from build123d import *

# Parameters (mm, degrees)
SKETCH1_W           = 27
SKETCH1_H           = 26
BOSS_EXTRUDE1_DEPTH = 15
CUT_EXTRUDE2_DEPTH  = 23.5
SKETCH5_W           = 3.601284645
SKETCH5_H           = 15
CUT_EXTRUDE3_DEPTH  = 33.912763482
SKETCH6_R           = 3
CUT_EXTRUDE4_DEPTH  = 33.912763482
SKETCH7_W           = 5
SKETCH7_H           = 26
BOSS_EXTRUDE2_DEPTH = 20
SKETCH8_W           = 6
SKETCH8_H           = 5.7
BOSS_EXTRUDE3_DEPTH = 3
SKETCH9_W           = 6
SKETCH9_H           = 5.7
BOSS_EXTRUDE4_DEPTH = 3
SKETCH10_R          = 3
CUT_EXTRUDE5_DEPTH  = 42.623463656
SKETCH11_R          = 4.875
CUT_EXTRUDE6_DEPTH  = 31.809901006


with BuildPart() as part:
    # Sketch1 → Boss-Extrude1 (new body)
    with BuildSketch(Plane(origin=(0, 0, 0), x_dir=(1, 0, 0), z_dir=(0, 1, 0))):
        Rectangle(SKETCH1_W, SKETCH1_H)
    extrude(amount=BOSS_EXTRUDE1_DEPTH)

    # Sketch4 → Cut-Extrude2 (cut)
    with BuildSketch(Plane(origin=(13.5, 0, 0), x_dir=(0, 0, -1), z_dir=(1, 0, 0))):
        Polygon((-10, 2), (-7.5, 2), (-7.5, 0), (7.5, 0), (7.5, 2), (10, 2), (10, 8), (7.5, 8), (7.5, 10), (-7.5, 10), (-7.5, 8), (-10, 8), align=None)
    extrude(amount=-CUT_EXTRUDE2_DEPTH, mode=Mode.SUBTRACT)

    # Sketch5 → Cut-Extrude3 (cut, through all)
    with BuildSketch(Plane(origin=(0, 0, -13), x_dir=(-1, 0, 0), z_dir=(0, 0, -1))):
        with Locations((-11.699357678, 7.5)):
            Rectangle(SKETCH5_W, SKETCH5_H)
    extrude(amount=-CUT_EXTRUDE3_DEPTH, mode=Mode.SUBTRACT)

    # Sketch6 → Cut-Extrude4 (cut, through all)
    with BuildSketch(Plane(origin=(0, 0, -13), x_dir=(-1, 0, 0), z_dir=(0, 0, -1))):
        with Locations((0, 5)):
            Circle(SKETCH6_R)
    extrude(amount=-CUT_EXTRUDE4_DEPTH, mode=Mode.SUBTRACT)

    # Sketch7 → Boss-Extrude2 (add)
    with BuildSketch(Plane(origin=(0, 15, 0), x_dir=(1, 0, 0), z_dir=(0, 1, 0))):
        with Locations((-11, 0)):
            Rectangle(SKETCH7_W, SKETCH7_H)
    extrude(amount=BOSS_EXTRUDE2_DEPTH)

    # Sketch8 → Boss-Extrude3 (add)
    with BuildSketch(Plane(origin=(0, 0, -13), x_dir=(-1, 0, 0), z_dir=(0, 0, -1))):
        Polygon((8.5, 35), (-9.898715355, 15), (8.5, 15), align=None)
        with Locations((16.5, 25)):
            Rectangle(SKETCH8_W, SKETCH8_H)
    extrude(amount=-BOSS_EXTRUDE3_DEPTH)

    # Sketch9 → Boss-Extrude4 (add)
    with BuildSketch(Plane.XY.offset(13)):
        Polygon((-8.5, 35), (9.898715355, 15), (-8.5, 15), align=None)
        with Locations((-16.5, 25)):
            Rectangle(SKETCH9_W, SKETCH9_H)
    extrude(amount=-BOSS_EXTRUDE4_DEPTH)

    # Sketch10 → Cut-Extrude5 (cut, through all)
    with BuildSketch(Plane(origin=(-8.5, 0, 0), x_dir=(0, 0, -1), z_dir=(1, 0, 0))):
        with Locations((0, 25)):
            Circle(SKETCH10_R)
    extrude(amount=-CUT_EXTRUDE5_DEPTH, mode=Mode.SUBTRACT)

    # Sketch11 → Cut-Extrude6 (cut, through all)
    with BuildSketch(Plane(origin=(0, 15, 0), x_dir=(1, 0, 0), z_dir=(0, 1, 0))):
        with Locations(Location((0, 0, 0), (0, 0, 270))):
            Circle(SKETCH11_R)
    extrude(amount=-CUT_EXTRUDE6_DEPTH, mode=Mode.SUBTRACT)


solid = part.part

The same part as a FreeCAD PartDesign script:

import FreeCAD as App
import Part
import Sketcher

doc = App.newDocument("Part")
params = doc.addObject("Spreadsheet::Sheet", "Params")
for row, (alias, value) in enumerate([
    ("sketch1_width", "27 mm"),
    ("sketch1_height", "26 mm"),
    ("pad1_length", "15 mm"),
    ("sketch2_width", "2 mm"),
    ("sketch2_width2", "6 mm"),
    ("sketch2_height", "15 mm"),
    ("sketch2_height2", "2.5 mm"),
    ("pocket1_length", "23.5 mm"),
    ("sketch3_height", "15 mm"),
    ("sketch4_diameter", "6 mm"),
    ("sketch5_width", "5 mm"),
    ("sketch5_height", "26 mm"),
    ("pad2_length", "20 mm"),
    ("sketch6_width", "6 mm"),
    ("sketch6_height", "20 mm"),
    ("sketch6_height2", "5.7 mm"),
    ("pad3_length", "3 mm"),
    ("sketch7_width", "6 mm"),
    ("sketch7_height", "20 mm"),
    ("sketch7_height2", "5.7 mm"),
    ("pad4_length", "3 mm"),
    ("sketch8_diameter", "6 mm"),
    ("sketch9_diameter", "9.75 mm"),
], start=1):
    params.set(f"A{row}", alias)
    params.set(f"B{row}", "=" + value)
    params.setAlias(f"B{row}", alias)

body = doc.addObject("PartDesign::Body", "Body")

# Sketch on XZ plane
sketch1 = body.newObject("Sketcher::SketchObject", "Sketch")
sketch1.AttachmentSupport = (doc.getObject("XZ_Plane"), [""])
sketch1.MapMode = "FlatFace"
sketch1.addGeometry([
    Part.LineSegment(App.Vector(-14, -13, 0), App.Vector(-14, 13, 0)),
    Part.LineSegment(App.Vector(-14, 13, 0), App.Vector(14, 13, 0)),
    Part.LineSegment(App.Vector(14, 13, 0), App.Vector(14, -13, 0)),
    Part.LineSegment(App.Vector(14, -13, 0), App.Vector(-14, -13, 0)),
], False)
sketch1.addConstraint([
    Sketcher.Constraint("Coincident", 0, 2, 1, 1),
    Sketcher.Constraint("Coincident", 1, 2, 2, 1),
    Sketcher.Constraint("Coincident", 2, 2, 3, 1),
    Sketcher.Constraint("Coincident", 3, 2, 0, 1),
    Sketcher.Constraint("Vertical", 0),
    Sketcher.Constraint("Horizontal", 1),
    Sketcher.Constraint("Vertical", 2),
    Sketcher.Constraint("Horizontal", 3),
    Sketcher.Constraint("Symmetric", 0, 2, 2, 2, -1, 1),
    Sketcher.Constraint("DistanceX", 1, 1, 1, 2, 27.0),
    Sketcher.Constraint("DistanceY", 0, 1, 0, 2, 26.0),
])
sketch1.setExpression("Constraints[9]", "Params.sketch1_width")
sketch1.setExpression("Constraints[10]", "Params.sketch1_height")
pad1 = body.newObject("PartDesign::Pad", "Pad")
pad1.Profile = sketch1
pad1.setExpression("Length", "Params.pad1_length")
pad1.Reversed = True

# Sketch on YZ plane
sketch2 = body.newObject("Sketcher::SketchObject", "Sketch001")
sketch2.AttachmentSupport = (doc.getObject("YZ_Plane"), [""])
sketch2.MapMode = "FlatFace"
sketch2.AttachmentOffset = App.Placement(App.Vector(0, 0, 13.5), App.Rotation())
sketch2.addGeometry([
    Part.LineSegment(App.Vector(2, 10, 0), App.Vector(2, 7.5, 0)),  # 0
    Part.LineSegment(App.Vector(2, 7.5, 0), App.Vector(0, 7.5, 0)),  # 1
    Part.LineSegment(App.Vector(0, 7.5, 0), App.Vector(0, -7.5, 0)),  # 2
    Part.LineSegment(App.Vector(0, -7.5, 0), App.Vector(2, -7.5, 0)),  # 3
    Part.LineSegment(App.Vector(2, -7.5, 0), App.Vector(2, -10, 0)),  # 4
    Part.LineSegment(App.Vector(2, -10, 0), App.Vector(8, -10, 0)),  # 5
    Part.LineSegment(App.Vector(8, -10, 0), App.Vector(8, -7.5, 0)),  # 6
    Part.LineSegment(App.Vector(8, -7.5, 0), App.Vector(10, -7.5, 0)),  # 7
    Part.LineSegment(App.Vector(10, -7.5, 0), App.Vector(10, 7.5, 0)),  # 8
    Part.LineSegment(App.Vector(10, 7.5, 0), App.Vector(8, 7.5, 0)),  # 9
    Part.LineSegment(App.Vector(8, 7.5, 0), App.Vector(8, 10, 0)),  # 10
    Part.LineSegment(App.Vector(8, 10, 0), App.Vector(2, 10, 0)),  # 11
], False)
sketch2.addConstraint([
    Sketcher.Constraint("Coincident", 0, 2, 1, 1),
    Sketcher.Constraint("Coincident", 1, 2, 2, 1),
    Sketcher.Constraint("Coincident", 2, 2, 3, 1),
    Sketcher.Constraint("Coincident", 3, 2, 4, 1),
    Sketcher.Constraint("Coincident", 4, 2, 5, 1),
    Sketcher.Constraint("Coincident", 5, 2, 6, 1),
    Sketcher.Constraint("Coincident", 6, 2, 7, 1),
    Sketcher.Constraint("Coincident", 7, 2, 8, 1),
    Sketcher.Constraint("Coincident", 8, 2, 9, 1),
    Sketcher.Constraint("Coincident", 9, 2, 10, 1),
    Sketcher.Constraint("Coincident", 10, 2, 11, 1),
    Sketcher.Constraint("Coincident", 11, 2, 0, 1),
    Sketcher.Constraint("Vertical", 0),
    Sketcher.Constraint("Horizontal", 1),
    Sketcher.Constraint("Vertical", 2),
    Sketcher.Constraint("Horizontal", 3),
    Sketcher.Constraint("Vertical", 4),
    Sketcher.Constraint("Horizontal", 5),
    Sketcher.Constraint("Vertical", 6),
    Sketcher.Constraint("Horizontal", 7),
    Sketcher.Constraint("Vertical", 8),
    Sketcher.Constraint("Horizontal", 9),
    Sketcher.Constraint("Vertical", 10),
    Sketcher.Constraint("Horizontal", 11),
    Sketcher.Constraint("Symmetric", 1, 2, 2, 2, -1, 1),
    Sketcher.Constraint("Symmetric", 6, 2, 9, 2, -1),
    Sketcher.Constraint("Symmetric", 4, 2, 11, 2, -1),
    Sketcher.Constraint("Horizontal", 3, 2, 6, 2),
    Sketcher.Constraint("Equal", 3, 7),
    Sketcher.Constraint("DistanceX", 1, 2, 1, 1, 2.0),
    Sketcher.Constraint("DistanceX", 5, 1, 5, 2, 6.0),
    Sketcher.Constraint("DistanceY", 2, 2, 2, 1, 15.0),
    Sketcher.Constraint("DistanceY", 0, 2, 0, 1, 2.5),
])
sketch2.setExpression("Constraints[29]", "Params.sketch2_width")
sketch2.setExpression("Constraints[30]", "Params.sketch2_width2")
sketch2.setExpression("Constraints[31]", "Params.sketch2_height")
sketch2.setExpression("Constraints[32]", "Params.sketch2_height2")
pocket1 = body.newObject("PartDesign::Pocket", "Pocket")
pocket1.Profile = sketch2
pocket1.setExpression("Length", "Params.pocket1_length")

# Sketch on XY plane
sketch3 = body.newObject("Sketcher::SketchObject", "Sketch002")
sketch3.AttachmentSupport = (doc.getObject("XY_Plane"), [""])
sketch3.MapMode = "FlatFace"
sketch3.AttachmentOffset = App.Placement(App.Vector(0, 0, -13), App.Rotation())
sketch3.addGeometry([
    Part.LineSegment(App.Vector(13.5, 15, 0), App.Vector(13.5, 0, 0)),
    Part.LineSegment(App.Vector(13.5, 0, 0), App.Vector(9.9, 0, 0)),
    Part.LineSegment(App.Vector(9.9, 0, 0), App.Vector(9.9, 15, 0)),
    Part.LineSegment(App.Vector(9.9, 15, 0), App.Vector(13.5, 15, 0)),
], False)
sketch3.addConstraint([
    Sketcher.Constraint("Coincident", 0, 2, 1, 1),
    Sketcher.Constraint("Coincident", 1, 2, 2, 1),
    Sketcher.Constraint("Coincident", 2, 2, 3, 1),
    Sketcher.Constraint("Coincident", 3, 2, 0, 1),
    Sketcher.Constraint("Vertical", 0),
    Sketcher.Constraint("Horizontal", 1),
    Sketcher.Constraint("Vertical", 2),
    Sketcher.Constraint("Horizontal", 3),
    Sketcher.Constraint("PointOnObject", 0, 2, -1),
    Sketcher.Constraint("DistanceY", 0, 2, 0, 1, 15.0),
    Sketcher.Constraint("DistanceX", -1, 1, 0, 2, 13.5),
    Sketcher.Constraint("DistanceX", 1, 2, 1, 1, 3.601285),
])
sketch3.setExpression("Constraints[9]", "Params.sketch3_height")
pocket2 = body.newObject("PartDesign::Pocket", "Pocket001")
pocket2.Profile = sketch3
pocket2.Type = "ThroughAll"
pocket2.Reversed = True

# Sketch on XY plane
sketch4 = body.newObject("Sketcher::SketchObject", "Sketch003")
sketch4.AttachmentSupport = (doc.getObject("XY_Plane"), [""])
sketch4.MapMode = "FlatFace"
sketch4.AttachmentOffset = App.Placement(App.Vector(0, 0, -13), App.Rotation())
sketch4.addGeometry(Part.Circle(App.Vector(0, 5, 0), App.Vector(0, 0, 1), 3), False)
sketch4.addConstraint([
    Sketcher.Constraint("PointOnObject", 0, 3, -2),
    Sketcher.Constraint("Diameter", 0, 6.0),
    Sketcher.Constraint("DistanceY", -1, 1, 0, 3, 5.0),
])
sketch4.setExpression("Constraints[1]", "Params.sketch4_diameter")
pocket3 = body.newObject("PartDesign::Pocket", "Pocket002")
pocket3.Profile = sketch4
pocket3.Type = "ThroughAll"
pocket3.Reversed = True

# Sketch on XZ plane
sketch5 = body.newObject("Sketcher::SketchObject", "Sketch004")
sketch5.AttachmentSupport = (doc.getObject("XZ_Plane"), [""])
sketch5.MapMode = "FlatFace"
sketch5.AttachmentOffset = App.Placement(App.Vector(0, 0, -15), App.Rotation())
sketch5.addGeometry([
    Part.LineSegment(App.Vector(-14, -13, 0), App.Vector(-14, 13, 0)),
    Part.LineSegment(App.Vector(-14, 13, 0), App.Vector(-8, 13, 0)),
    Part.LineSegment(App.Vector(-8, 13, 0), App.Vector(-8, -13, 0)),
    Part.LineSegment(App.Vector(-8, -13, 0), App.Vector(-14, -13, 0)),
], False)
sketch5.addConstraint([
    Sketcher.Constraint("Coincident", 0, 2, 1, 1),
    Sketcher.Constraint("Coincident", 1, 2, 2, 1),
    Sketcher.Constraint("Coincident", 2, 2, 3, 1),
    Sketcher.Constraint("Coincident", 3, 2, 0, 1),
    Sketcher.Constraint("Vertical", 0),
    Sketcher.Constraint("Horizontal", 1),
    Sketcher.Constraint("Vertical", 2),
    Sketcher.Constraint("Horizontal", 3),
    Sketcher.Constraint("DistanceX", 1, 1, 1, 2, 5.0),
    Sketcher.Constraint("DistanceY", 0, 1, 0, 2, 26.0),
    Sketcher.Constraint("DistanceY", -1, 1, 0, 2, 13.0),
    Sketcher.Constraint("DistanceX", 0, 2, -1, 1, 13.5),
])
sketch5.setExpression("Constraints[8]", "Params.sketch5_width")
sketch5.setExpression("Constraints[9]", "Params.sketch5_height")
pad2 = body.newObject("PartDesign::Pad", "Pad001")
pad2.Profile = sketch5
pad2.setExpression("Length", "Params.pad2_length")
pad2.Reversed = True

# Sketch on XY plane
sketch6 = body.newObject("Sketcher::SketchObject", "Sketch005")
sketch6.AttachmentSupport = (doc.getObject("XY_Plane"), [""])
sketch6.MapMode = "FlatFace"
sketch6.AttachmentOffset = App.Placement(App.Vector(0, 0, -13), App.Rotation())
sketch6.addGeometry([
    Part.LineSegment(App.Vector(-8, 35, 0), App.Vector(10, 15, 0)),  # 0
    Part.LineSegment(App.Vector(10, 15, 0), App.Vector(-8, 15, 0)),  # 1
    Part.LineSegment(App.Vector(-8, 15, 0), App.Vector(-8, 35, 0)),  # 2
    Part.LineSegment(App.Vector(-14, 28, 0), App.Vector(-14, 22, 0)),  # 3
    Part.LineSegment(App.Vector(-14, 22, 0), App.Vector(-20, 22, 0)),  # 4
    Part.LineSegment(App.Vector(-20, 22, 0), App.Vector(-20, 28, 0)),  # 5
    Part.LineSegment(App.Vector(-20, 28, 0), App.Vector(-14, 28, 0)),  # 6
], False)
sketch6.addConstraint([
    Sketcher.Constraint("Coincident", 0, 2, 1, 1),
    Sketcher.Constraint("Coincident", 1, 2, 2, 1),
    Sketcher.Constraint("Coincident", 2, 2, 0, 1),
    Sketcher.Constraint("Coincident", 3, 2, 4, 1),
    Sketcher.Constraint("Coincident", 4, 2, 5, 1),
    Sketcher.Constraint("Coincident", 5, 2, 6, 1),
    Sketcher.Constraint("Coincident", 6, 2, 3, 1),
    Sketcher.Constraint("Horizontal", 1),
    Sketcher.Constraint("Vertical", 2),
    Sketcher.Constraint("Vertical", 3),
    Sketcher.Constraint("Horizontal", 4),
    Sketcher.Constraint("Vertical", 5),
    Sketcher.Constraint("Horizontal", 6),
    Sketcher.Constraint("DistanceX", 4, 2, 4, 1, 6.0),
    Sketcher.Constraint("DistanceY", 2, 1, 2, 2, 20.0),
    Sketcher.Constraint("DistanceY", 3, 2, 3, 1, 5.7),
    Sketcher.Constraint("DistanceY", -1, 1, 0, 2, 15.0),
    Sketcher.Constraint("DistanceX", 3, 2, 1, 2, 5.0),
    Sketcher.Constraint("DistanceX", 1, 2, -1, 1, 8.5),
    Sketcher.Constraint("DistanceY", -1, 1, 3, 2, 22.15),
    Sketcher.Constraint("Distance", 0, 27.175591),
])
sketch6.setExpression("Constraints[13]", "Params.sketch6_width")
sketch6.setExpression("Constraints[14]", "Params.sketch6_height")
sketch6.setExpression("Constraints[15]", "Params.sketch6_height2")
pad3 = body.newObject("PartDesign::Pad", "Pad002")
pad3.Profile = sketch6
pad3.setExpression("Length", "Params.pad3_length")

# Sketch on XY plane
sketch7 = body.newObject("Sketcher::SketchObject", "Sketch006")
sketch7.AttachmentSupport = (doc.getObject("XY_Plane"), [""])
sketch7.MapMode = "FlatFace"
sketch7.AttachmentOffset = App.Placement(App.Vector(0, 0, 13), App.Rotation())
sketch7.addGeometry([
    Part.LineSegment(App.Vector(10, 15, 0), App.Vector(-8, 35, 0)),  # 0
    Part.LineSegment(App.Vector(-8, 35, 0), App.Vector(-8, 15, 0)),  # 1
    Part.LineSegment(App.Vector(-8, 15, 0), App.Vector(10, 15, 0)),  # 2
    Part.LineSegment(App.Vector(-20, 28, 0), App.Vector(-20, 22, 0)),  # 3
    Part.LineSegment(App.Vector(-20, 22, 0), App.Vector(-14, 22, 0)),  # 4
    Part.LineSegment(App.Vector(-14, 22, 0), App.Vector(-14, 28, 0)),  # 5
    Part.LineSegment(App.Vector(-14, 28, 0), App.Vector(-20, 28, 0)),  # 6
], False)
sketch7.addConstraint([
    Sketcher.Constraint("Coincident", 0, 2, 1, 1),
    Sketcher.Constraint("Coincident", 1, 2, 2, 1),
    Sketcher.Constraint("Coincident", 2, 2, 0, 1),
    Sketcher.Constraint("Coincident", 3, 2, 4, 1),
    Sketcher.Constraint("Coincident", 4, 2, 5, 1),
    Sketcher.Constraint("Coincident", 5, 2, 6, 1),
    Sketcher.Constraint("Coincident", 6, 2, 3, 1),
    Sketcher.Constraint("Vertical", 1),
    Sketcher.Constraint("Horizontal", 2),
    Sketcher.Constraint("Vertical", 3),
    Sketcher.Constraint("Horizontal", 4),
    Sketcher.Constraint("Vertical", 5),
    Sketcher.Constraint("Horizontal", 6),
    Sketcher.Constraint("DistanceX", 4, 1, 4, 2, 6.0),
    Sketcher.Constraint("DistanceY", 1, 2, 1, 1, 20.0),
    Sketcher.Constraint("DistanceY", 3, 2, 3, 1, 5.7),
    Sketcher.Constraint("DistanceY", -1, 1, 0, 2, 35.0),
    Sketcher.Constraint("DistanceX", 3, 2, 1, 2, 11.0),
    Sketcher.Constraint("DistanceX", 0, 2, -1, 1, 8.5),
    Sketcher.Constraint("DistanceY", -1, 1, 3, 2, 22.15),
    Sketcher.Constraint("Distance", 0, 27.175591),
])
sketch7.setExpression("Constraints[13]", "Params.sketch7_width")
sketch7.setExpression("Constraints[14]", "Params.sketch7_height")
sketch7.setExpression("Constraints[15]", "Params.sketch7_height2")
pad4 = body.newObject("PartDesign::Pad", "Pad003")
pad4.Profile = sketch7
pad4.setExpression("Length", "Params.pad4_length")
pad4.Reversed = True

# Sketch on YZ plane
sketch8 = body.newObject("Sketcher::SketchObject", "Sketch007")
sketch8.AttachmentSupport = (doc.getObject("YZ_Plane"), [""])
sketch8.MapMode = "FlatFace"
sketch8.AttachmentOffset = App.Placement(App.Vector(0, 0, -8.5), App.Rotation())
sketch8.addGeometry(Part.Circle(App.Vector(25, 0, 0), App.Vector(0, 0, 1), 3), False)
sketch8.addConstraint([
    Sketcher.Constraint("PointOnObject", 0, 3, -1),
    Sketcher.Constraint("Diameter", 0, 6.0),
    Sketcher.Constraint("DistanceX", -1, 1, 0, 3, 25.0),
])
sketch8.setExpression("Constraints[1]", "Params.sketch8_diameter")
pocket4 = body.newObject("PartDesign::Pocket", "Pocket003")
pocket4.Profile = sketch8
pocket4.Type = "ThroughAll"

# Sketch on XZ plane
sketch9 = body.newObject("Sketcher::SketchObject", "Sketch008")
sketch9.AttachmentSupport = (doc.getObject("XZ_Plane"), [""])
sketch9.MapMode = "FlatFace"
sketch9.AttachmentOffset = App.Placement(App.Vector(0, 0, -15), App.Rotation())
sketch9.addGeometry(Part.Circle(App.Vector(0, 0, 0), App.Vector(0, 0, 1), 4.9), False)
sketch9.addConstraint([
    Sketcher.Constraint("Coincident", 0, 3, -1, 1),
    Sketcher.Constraint("Diameter", 0, 9.75),
])
sketch9.setExpression("Constraints[1]", "Params.sketch9_diameter")
pocket5 = body.newObject("PartDesign::Pocket", "Pocket004")
pocket5.Profile = sketch9
pocket5.Type = "ThroughAll"
pocket5.Reversed = True

doc.recompute()
